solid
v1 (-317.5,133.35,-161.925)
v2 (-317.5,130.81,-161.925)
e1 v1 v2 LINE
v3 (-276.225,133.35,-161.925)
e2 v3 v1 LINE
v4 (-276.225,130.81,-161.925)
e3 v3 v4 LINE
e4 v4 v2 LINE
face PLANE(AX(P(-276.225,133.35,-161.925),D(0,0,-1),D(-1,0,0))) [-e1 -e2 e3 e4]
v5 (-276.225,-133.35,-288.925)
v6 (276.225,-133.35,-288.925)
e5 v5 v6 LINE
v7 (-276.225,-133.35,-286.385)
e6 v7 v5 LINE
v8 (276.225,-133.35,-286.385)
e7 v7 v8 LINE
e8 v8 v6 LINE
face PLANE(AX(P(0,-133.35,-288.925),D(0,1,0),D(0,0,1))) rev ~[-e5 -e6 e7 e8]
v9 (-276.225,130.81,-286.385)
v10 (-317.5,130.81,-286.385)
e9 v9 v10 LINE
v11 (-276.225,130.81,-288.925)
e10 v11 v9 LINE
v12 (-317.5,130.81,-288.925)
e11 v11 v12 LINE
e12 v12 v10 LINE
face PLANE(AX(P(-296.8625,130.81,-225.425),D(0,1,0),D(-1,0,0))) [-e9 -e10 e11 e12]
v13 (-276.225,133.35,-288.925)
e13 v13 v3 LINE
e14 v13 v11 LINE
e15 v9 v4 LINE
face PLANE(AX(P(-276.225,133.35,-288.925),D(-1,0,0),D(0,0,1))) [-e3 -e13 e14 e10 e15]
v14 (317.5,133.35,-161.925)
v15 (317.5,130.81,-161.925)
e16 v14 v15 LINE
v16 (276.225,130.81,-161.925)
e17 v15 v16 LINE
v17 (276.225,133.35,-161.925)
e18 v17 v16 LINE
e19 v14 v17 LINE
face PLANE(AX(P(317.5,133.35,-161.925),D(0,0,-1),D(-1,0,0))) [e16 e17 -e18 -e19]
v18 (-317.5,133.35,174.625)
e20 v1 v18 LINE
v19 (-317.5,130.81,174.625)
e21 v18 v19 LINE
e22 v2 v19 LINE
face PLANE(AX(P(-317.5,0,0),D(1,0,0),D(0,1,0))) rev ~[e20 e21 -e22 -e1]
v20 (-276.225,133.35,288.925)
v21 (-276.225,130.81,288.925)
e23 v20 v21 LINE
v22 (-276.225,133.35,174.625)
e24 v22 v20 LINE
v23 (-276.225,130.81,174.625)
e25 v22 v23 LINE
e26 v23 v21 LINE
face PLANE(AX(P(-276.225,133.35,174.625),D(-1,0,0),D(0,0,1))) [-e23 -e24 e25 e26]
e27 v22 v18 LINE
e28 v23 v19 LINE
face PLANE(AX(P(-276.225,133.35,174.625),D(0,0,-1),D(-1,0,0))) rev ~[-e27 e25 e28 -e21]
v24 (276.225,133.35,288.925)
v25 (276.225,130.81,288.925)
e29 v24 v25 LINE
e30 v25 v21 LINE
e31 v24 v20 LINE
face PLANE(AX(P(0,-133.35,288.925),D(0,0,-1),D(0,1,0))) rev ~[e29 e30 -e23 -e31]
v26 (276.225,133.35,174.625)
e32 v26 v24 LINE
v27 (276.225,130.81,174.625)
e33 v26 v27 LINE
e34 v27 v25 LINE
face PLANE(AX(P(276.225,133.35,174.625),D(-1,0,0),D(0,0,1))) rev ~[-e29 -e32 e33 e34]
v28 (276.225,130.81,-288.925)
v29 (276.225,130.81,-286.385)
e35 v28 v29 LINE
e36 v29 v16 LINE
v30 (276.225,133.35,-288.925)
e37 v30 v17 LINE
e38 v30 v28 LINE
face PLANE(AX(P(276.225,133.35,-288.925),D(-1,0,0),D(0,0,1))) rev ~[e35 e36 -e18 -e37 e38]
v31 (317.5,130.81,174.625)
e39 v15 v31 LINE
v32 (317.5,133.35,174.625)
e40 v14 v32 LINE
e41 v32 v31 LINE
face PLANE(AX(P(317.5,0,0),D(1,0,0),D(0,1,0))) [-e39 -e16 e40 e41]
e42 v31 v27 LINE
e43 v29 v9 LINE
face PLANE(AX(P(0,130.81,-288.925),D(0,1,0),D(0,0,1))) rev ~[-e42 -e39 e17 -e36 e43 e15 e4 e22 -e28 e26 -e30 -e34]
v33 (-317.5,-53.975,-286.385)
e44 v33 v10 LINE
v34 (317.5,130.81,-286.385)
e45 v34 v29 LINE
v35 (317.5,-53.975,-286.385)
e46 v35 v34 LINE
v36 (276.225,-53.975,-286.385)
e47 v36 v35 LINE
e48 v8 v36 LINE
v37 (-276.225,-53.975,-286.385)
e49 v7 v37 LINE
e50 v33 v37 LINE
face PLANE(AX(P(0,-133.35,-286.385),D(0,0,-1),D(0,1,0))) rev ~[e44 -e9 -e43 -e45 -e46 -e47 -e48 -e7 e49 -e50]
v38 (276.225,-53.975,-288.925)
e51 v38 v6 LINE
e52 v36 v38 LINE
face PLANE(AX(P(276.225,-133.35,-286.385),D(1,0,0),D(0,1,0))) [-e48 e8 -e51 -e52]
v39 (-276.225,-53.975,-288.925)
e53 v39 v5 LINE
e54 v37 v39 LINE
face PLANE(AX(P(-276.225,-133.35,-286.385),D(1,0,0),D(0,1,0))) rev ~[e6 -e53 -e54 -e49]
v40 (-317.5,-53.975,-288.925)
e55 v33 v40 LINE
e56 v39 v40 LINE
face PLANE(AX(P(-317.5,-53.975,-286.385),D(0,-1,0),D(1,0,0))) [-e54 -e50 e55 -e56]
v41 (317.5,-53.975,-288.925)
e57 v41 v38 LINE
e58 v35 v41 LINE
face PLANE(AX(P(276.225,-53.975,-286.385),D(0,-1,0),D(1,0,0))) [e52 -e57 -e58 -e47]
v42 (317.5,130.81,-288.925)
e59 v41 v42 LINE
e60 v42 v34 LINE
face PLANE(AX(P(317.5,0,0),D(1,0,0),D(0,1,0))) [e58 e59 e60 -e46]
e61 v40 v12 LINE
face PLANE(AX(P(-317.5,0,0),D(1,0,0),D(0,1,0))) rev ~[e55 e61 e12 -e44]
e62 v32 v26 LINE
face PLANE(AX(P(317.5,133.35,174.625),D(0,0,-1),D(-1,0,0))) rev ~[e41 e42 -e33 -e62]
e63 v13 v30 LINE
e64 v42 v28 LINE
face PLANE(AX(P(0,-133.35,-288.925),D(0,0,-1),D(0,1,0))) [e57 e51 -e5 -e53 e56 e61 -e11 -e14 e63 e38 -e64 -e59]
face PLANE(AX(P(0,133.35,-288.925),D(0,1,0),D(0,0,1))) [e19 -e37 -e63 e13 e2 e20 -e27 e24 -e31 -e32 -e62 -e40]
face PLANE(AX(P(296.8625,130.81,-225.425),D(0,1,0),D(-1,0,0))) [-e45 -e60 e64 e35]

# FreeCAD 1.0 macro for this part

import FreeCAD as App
import Part
import Sketcher
from FreeCAD import Vector
Q = App.Units.Quantity


def faces_at(feature, points):
    """Names of the faces that lie closest to the given points."""
    faces = feature.Shape.Faces
    near = lambda p: min(range(len(faces)), key=lambda i: faces[i].distToShape(Part.Vertex(*p))[0])
    return sorted({f"Face{near(p) + 1}" for p in points})

doc = App.newDocument("Part")
body = doc.addObject("PartDesign::Body", "Body")

# Sketch on YZ plane
sketch1 = body.newObject("Sketcher::SketchObject", "Sketch")
sketch1.AttachmentSupport = (doc.getObject("YZ_Plane"), [""])
sketch1.MapMode = "FlatFace"
sketch1.addGeometry(Part.LineSegment(Vector(-133, 289, 0), Vector(-133, -289, 0)), False)
sketch1.addGeometry(Part.LineSegment(Vector(-133, -289, 0), Vector(133, -289, 0)), False)
sketch1.addGeometry(Part.LineSegment(Vector(133, -289, 0), Vector(133, 289, 0)), False)
sketch1.addGeometry(Part.LineSegment(Vector(133, 289, 0), Vector(-133, 289, 0)), False)
sketch1.addConstraint(Sketcher.Constraint("Coincident", 0, 2, 1, 1))
sketch1.addConstraint(Sketcher.Constraint("Coincident", 1, 2, 2, 1))
sketch1.addConstraint(Sketcher.Constraint("Coincident", 2, 2, 3, 1))
sketch1.addConstraint(Sketcher.Constraint("Coincident", 3, 2, 0, 1))
sketch1.addConstraint(Sketcher.Constraint("Vertical", 0))
sketch1.addConstraint(Sketcher.Constraint("Horizontal", 1))
sketch1.addConstraint(Sketcher.Constraint("Vertical", 2))
sketch1.addConstraint(Sketcher.Constraint("Horizontal", 3))
sketch1.addConstraint(Sketcher.Constraint("Symmetric", 0, 2, 2, 2, -1, 1))
sketch1.addConstraint(Sketcher.Constraint("DistanceX", 1, 1, 1, 2, Q("10.5 in")))
sketch1.addConstraint(Sketcher.Constraint("DistanceY", 0, 2, 0, 1, Q("22.75 in")))
pad1 = body.newObject("PartDesign::Pad", "Pad")
pad1.Profile = sketch1
pad1.Length = Q("25 in")
pad1.Midplane = True
doc.recompute()

thickness = body.newObject("PartDesign::Thickness", "Thickness")
thickness.Base = (pad1, faces_at(pad1, [
    (0, -133.35, 0),
    (0, 0, 288.925),
    (317.5, 0, 0),
    (-317.5, 0, 0),
]))
thickness.Value = Q("0.1 in")
thickness.Reversed = True
thickness.Join = "Arc"

# Sketch on XZ plane
sketch2 = body.newObject("Sketcher::SketchObject", "Sketch001")
sketch2.AttachmentSupport = (doc.getObject("XZ_Plane"), [""])
sketch2.MapMode = "FlatFace"
sketch2.AttachmentOffset = App.Placement(Vector(0, 0, -5.25 * 25.4), App.Rotation())
sketch2.addGeometry(Part.LineSegment(Vector(318, 289, 0), Vector(318, 175, 0)), False)
sketch2.addGeometry(Part.LineSegment(Vector(318, 175, 0), Vector(276, 175, 0)), False)
sketch2.addGeometry(Part.LineSegment(Vector(276, 175, 0), Vector(276, 289, 0)), False)
sketch2.addGeometry(Part.LineSegment(Vector(276, 289, 0), Vector(318, 289, 0)), False)
sketch2.addGeometry(Part.LineSegment(Vector(-276, 289, 0), Vector(-276, 175, 0)), False)
sketch2.addGeometry(Part.LineSegment(Vector(-276, 175, 0), Vector(-318, 175, 0)), False)
sketch2.addGeometry(Part.LineSegment(Vector(-318, 175, 0), Vector(-318, 289, 0)), False)
sketch2.addGeometry(Part.LineSegment(Vector(-318, 289, 0), Vector(-276, 289, 0)), False)
sketch2.addGeometry(Part.LineSegment(Vector(318, -162, 0), Vector(318, -289, 0)), False)
sketch2.addGeometry(Part.LineSegment(Vector(318, -289, 0), Vector(276, -289, 0)), False)
sketch2.addGeometry(Part.LineSegment(Vector(276, -289, 0), Vector(276, -162, 0)), False)
sketch2.addGeometry(Part.LineSegment(Vector(276, -162, 0), Vector(318, -162, 0)), False)
sketch2.addGeometry(Part.LineSegment(Vector(-276, -162, 0), Vector(-276, -289, 0)), False)
sketch2.addGeometry(Part.LineSegment(Vector(-276, -289, 0), Vector(-318, -289, 0)), False)
sketch2.addGeometry(Part.LineSegment(Vector(-318, -289, 0), Vector(-318, -162, 0)), False)
sketch2.addGeometry(Part.LineSegment(Vector(-318, -162, 0), Vector(-276, -162, 0)), False)
sketch2.addConstraint(Sketcher.Constraint("Coincident", 0, 2, 1, 1))
sketch2.addConstraint(Sketcher.Constraint("Coincident", 1, 2, 2, 1))
sketch2.addConstraint(Sketcher.Constraint("Coincident", 2, 2, 3, 1))
sketch2.addConstraint(Sketcher.Constraint("Coincident", 3, 2, 0, 1))
sketch2.addConstraint(Sketcher.Constraint("Coincident", 4, 2, 5, 1))
sketch2.addConstraint(Sketcher.Constraint("Coincident", 5, 2, 6, 1))
sketch2.addConstraint(Sketcher.Constraint("Coincident", 6, 2, 7, 1))
sketch2.addConstraint(Sketcher.Constraint("Coincident", 7, 2, 4, 1))
sketch2.addConstraint(Sketcher.Constraint("Coincident", 8, 2, 9, 1))
sketch2.addConstraint(Sketcher.Constraint("Coincident", 9, 2, 10, 1))
sketch2.addConstraint(Sketcher.Constraint("Coincident", 10, 2, 11, 1))
sketch2.addConstraint(Sketcher.Constraint("Coincident", 11, 2, 8, 1))
sketch2.addConstraint(Sketcher.Constraint("Coincident", 12, 2, 13, 1))
sketch2.addConstraint(Sketcher.Constraint("Coincident", 13, 2, 14, 1))
sketch2.addConstraint(Sketcher.Constraint("Coincident", 14, 2, 15, 1))
sketch2.addConstraint(Sketcher.Constraint("Coincident", 15, 2, 12, 1))
sketch2.addConstraint(Sketcher.Constraint("Vertical", 0))
sketch2.addConstraint(Sketcher.Constraint("Horizontal", 1))
sketch2.addConstraint(Sketcher.Constraint("Vertical", 2))
sketch2.addConstraint(Sketcher.Constraint("Horizontal", 3))
sketch2.addConstraint(Sketcher.Constraint("Vertical", 4))
sketch2.addConstraint(Sketcher.Constraint("Horizontal", 5))
sketch2.addConstraint(Sketcher.Constraint("Vertical", 6))
sketch2.addConstraint(Sketcher.Constraint("Horizontal", 7))
sketch2.addConstraint(Sketcher.Constraint("Vertical", 8))
sketch2.addConstraint(Sketcher.Constraint("Horizontal", 9))
sketch2.addConstraint(Sketcher.Constraint("Vertical", 10))
sketch2.addConstraint(Sketcher.Constraint("Horizontal", 11))
sketch2.addConstraint(Sketcher.Constraint("Vertical", 12))
sketch2.addConstraint(Sketcher.Constraint("Horizontal", 13))
sketch2.addConstraint(Sketcher.Constraint("Vertical", 14))
sketch2.addConstraint(Sketcher.Constraint("Horizontal", 15))
sketch2.addConstraint(Sketcher.Constraint("Symmetric", 6, 2, 8, 2, -1, 1))
sketch2.addConstraint(Sketcher.Constraint("Symmetric", 2, 2, 12, 2, -1, 1))
sketch2.addConstraint(Sketcher.Constraint("Symmetric", 1, 2, 4, 2, -2))
sketch2.addConstraint(Sketcher.Constraint("Symmetric", 3, 2, 6, 2, -2))
sketch2.addConstraint(Sketcher.Constraint("Symmetric", 11, 2, 14, 2, -2))
sketch2.addConstraint(Sketcher.Constraint("Vertical", 2, 2, 9, 2))
sketch2.addConstraint(Sketcher.Constraint("DistanceY", 8, 2, 8, 1, Q("5 in")))
sketch2.addConstraint(Sketcher.Constraint("DistanceY", 0, 2, 0, 1, Q("4.5 in")))
sketch2.addConstraint(Sketcher.Constraint("DistanceX", 5, 2, 0, 2, Q("25 in")))
sketch2.addConstraint(Sketcher.Constraint("DistanceX", 1, 2, 1, 1, Q("1.625 in")))
sketch2.addConstraint(Sketcher.Constraint("DistanceY", 8, 2, 0, 2, Q("18.25 in")))
pocket1 = body.newObject("PartDesign::Pocket", "Pocket")
pocket1.Profile = sketch2
pocket1.Length = Q("0.1 in")
pocket1.Reversed = True

# Sketch on XY plane
sketch3 = body.newObject("Sketcher::SketchObject", "Sketch002")
sketch3.AttachmentSupport = (doc.getObject("XY_Plane"), [""])
sketch3.MapMode = "FlatFace"
sketch3.AttachmentOffset = App.Placement(Vector(0, 0, -11.275 * 25.4), App.Rotation())
sketch3.addGeometry(Part.LineSegment(Vector(-318, -54, 0), Vector(-318, -133, 0)), False)
sketch3.addGeometry(Part.LineSegment(Vector(-318, -133, 0), Vector(-276, -133, 0)), False)
sketch3.addGeometry(Part.LineSegment(Vector(-276, -133, 0), Vector(-276, -54, 0)), False)
sketch3.addGeometry(Part.LineSegment(Vector(-276, -54, 0), Vector(-318, -54, 0)), False)
sketch3.addGeometry(Part.LineSegment(Vector(276, -54, 0), Vector(276, -133, 0)), False)
sketch3.addGeometry(Part.LineSegment(Vector(276, -133, 0), Vector(318, -133, 0)), False)
sketch3.addGeometry(Part.LineSegment(Vector(318, -133, 0), Vector(318, -54, 0)), False)
sketch3.addGeometry(Part.LineSegment(Vector(318, -54, 0), Vector(276, -54, 0)), False)
sketch3.addConstraint(Sketcher.Constraint("Coincident", 0, 2, 1, 1))
sketch3.addConstraint(Sketcher.Constraint("Coincident", 1, 2, 2, 1))
sketch3.addConstraint(Sketcher.Constraint("Coincident", 2, 2, 3, 1))
sketch3.addConstraint(Sketcher.Constraint("Coincident", 3, 2, 0, 1))
sketch3.addConstraint(Sketcher.Constraint("Coincident", 4, 2, 5, 1))
sketch3.addConstraint(Sketcher.Constraint("Coincident", 5, 2, 6, 1))
sketch3.addConstraint(Sketcher.Constraint("Coincident", 6, 2, 7, 1))
sketch3.addConstraint(Sketcher.Constraint("Coincident", 7, 2, 4, 1))
sketch3.addConstraint(Sketcher.Constraint("Vertical", 0))
sketch3.addConstraint(Sketcher.Constraint("Horizontal", 1))
sketch3.addConstraint(Sketcher.Constraint("Vertical", 2))
sketch3.addConstraint(Sketcher.Constraint("Horizontal", 3))
sketch3.addConstraint(Sketcher.Constraint("Vertical", 4))
sketch3.addConstraint(Sketcher.Constraint("Horizontal", 5))
sketch3.addConstraint(Sketcher.Constraint("Vertical", 6))
sketch3.addConstraint(Sketcher.Constraint("Horizontal", 7))
sketch3.addConstraint(Sketcher.Constraint("Symmetric", 1, 2, 4, 2, -2))
sketch3.addConstraint(Sketcher.Constraint("Symmetric", 3, 2, 6, 2, -2))
sketch3.addConstraint(Sketcher.Constraint("DistanceX", 0, 2, 5, 2, Q("25 in")))
sketch3.addConstraint(Sketcher.Constraint("DistanceX", 1, 1, 1, 2, Q("1.625 in")))
sketch3.addConstraint(Sketcher.Constraint("DistanceY", 0, 2, 0, 1, Q("3.125 in")))
sketch3.addConstraint(Sketcher.Constraint("DistanceY", 0, 2, -1, 1, Q("5.25 in")))
pocket2 = body.newObject("PartDesign::Pocket", "Pocket001")
pocket2.Profile = sketch3
pocket2.Type = "ThroughAll"

doc.recompute()
